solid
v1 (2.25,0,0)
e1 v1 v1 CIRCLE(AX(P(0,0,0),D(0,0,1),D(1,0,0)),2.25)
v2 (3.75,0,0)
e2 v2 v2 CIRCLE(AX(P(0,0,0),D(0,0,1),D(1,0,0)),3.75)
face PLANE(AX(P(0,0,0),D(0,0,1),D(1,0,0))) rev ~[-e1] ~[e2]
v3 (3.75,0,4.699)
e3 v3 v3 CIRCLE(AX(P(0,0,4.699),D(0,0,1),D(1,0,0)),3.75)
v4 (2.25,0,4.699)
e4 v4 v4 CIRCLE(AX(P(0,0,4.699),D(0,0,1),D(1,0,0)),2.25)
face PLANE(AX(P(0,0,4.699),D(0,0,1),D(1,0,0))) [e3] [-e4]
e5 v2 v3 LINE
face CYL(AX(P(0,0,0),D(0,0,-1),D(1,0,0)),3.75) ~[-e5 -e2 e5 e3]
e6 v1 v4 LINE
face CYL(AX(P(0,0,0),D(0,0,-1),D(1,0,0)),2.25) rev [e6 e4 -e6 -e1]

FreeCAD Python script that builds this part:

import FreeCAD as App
import Part
import Sketcher
from FreeCAD import Vector
Q = App.Units.Quantity

doc = App.newDocument("Part")
body = doc.addObject("PartDesign::Body", "Body")

# Sketch on XY plane
sketch1 = doc.addObject("Sketcher::SketchObject", "Sketch")
body.addObject(sketch1)
sketch1.AttachmentSupport = (doc.XY_Plane, [""])
sketch1.MapMode = "FlatFace"
sketch1.addGeometry([
    Part.Circle(Vector(0, 0, 0), Vector(0, 0, 1), 3.8),
    Part.Circle(Vector(0, 0, 0), Vector(0, 0, 1), 2.2),
], False)
sketch1.addConstraint([
    Sketcher.Constraint("Coincident", 0, 3, -1, 1),
    Sketcher.Constraint("Coincident", 1, 3, -1, 1),
    Sketcher.Constraint("Diameter", 0, Q("7.5 mm")),
    Sketcher.Constraint("Diameter", 1, Q("4.5 mm")),
])
pad1 = doc.addObject("PartDesign::Pad", "Pad")
body.addObject(pad1)
pad1.Profile = sketch1
pad1.Length = 4.699

doc.recompute()
